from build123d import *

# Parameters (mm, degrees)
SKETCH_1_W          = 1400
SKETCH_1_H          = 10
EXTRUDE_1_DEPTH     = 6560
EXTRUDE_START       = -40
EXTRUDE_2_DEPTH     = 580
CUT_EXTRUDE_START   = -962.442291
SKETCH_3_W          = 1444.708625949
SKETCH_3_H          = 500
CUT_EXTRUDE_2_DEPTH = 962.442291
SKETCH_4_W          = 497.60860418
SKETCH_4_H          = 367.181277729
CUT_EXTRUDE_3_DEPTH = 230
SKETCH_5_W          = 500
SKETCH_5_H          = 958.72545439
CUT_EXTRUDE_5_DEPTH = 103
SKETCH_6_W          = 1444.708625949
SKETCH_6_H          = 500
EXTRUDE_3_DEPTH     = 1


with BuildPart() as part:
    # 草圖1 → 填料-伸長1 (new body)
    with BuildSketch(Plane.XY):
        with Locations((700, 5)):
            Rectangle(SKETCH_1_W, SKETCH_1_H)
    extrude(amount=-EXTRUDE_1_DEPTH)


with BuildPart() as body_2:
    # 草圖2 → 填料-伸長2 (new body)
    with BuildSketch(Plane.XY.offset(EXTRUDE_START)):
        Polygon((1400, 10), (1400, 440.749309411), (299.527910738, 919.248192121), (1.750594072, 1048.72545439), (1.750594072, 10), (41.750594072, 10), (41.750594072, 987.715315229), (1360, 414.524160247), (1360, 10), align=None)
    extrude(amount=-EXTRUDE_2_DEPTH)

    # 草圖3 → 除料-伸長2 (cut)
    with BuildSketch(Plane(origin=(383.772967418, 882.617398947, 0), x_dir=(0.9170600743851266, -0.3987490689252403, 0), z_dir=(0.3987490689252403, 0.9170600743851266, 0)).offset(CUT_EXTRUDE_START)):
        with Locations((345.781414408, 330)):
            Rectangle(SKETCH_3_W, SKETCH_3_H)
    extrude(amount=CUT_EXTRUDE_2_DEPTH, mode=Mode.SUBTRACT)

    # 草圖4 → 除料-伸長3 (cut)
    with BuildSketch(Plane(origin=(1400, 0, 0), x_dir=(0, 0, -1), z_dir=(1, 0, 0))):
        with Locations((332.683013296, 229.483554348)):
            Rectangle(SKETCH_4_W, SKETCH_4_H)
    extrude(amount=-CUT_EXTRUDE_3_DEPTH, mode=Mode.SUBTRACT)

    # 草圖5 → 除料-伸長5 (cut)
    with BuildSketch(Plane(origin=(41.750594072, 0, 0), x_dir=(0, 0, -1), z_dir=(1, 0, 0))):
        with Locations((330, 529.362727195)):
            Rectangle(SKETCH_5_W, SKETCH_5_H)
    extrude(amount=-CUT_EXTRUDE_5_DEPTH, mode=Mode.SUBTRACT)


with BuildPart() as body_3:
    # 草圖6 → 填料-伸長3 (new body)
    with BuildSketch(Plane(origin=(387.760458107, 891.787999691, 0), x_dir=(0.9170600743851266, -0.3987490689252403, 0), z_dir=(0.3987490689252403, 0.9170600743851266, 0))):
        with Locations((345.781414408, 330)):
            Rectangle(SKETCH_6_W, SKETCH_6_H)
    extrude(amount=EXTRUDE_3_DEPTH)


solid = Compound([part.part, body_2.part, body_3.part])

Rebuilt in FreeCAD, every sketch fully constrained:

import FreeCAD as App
import Part
import Sketcher

V = App.Vector
Q = App.Units.Quantity


def add_polygon(sketch, points):
    """Adds a closed chain of lines whose ends are joined by coincident constraints."""
    first, n = sketch.GeometryCount, len(points)
    for a, b in zip(points, points[1:] + points[:1]):
        sketch.addGeometry(Part.LineSegment(App.Vector(*a, 0), App.Vector(*b, 0)), False)
    for i in range(n):
        sketch.addConstraint(Sketcher.Constraint("Coincident", first + i, 2, first + (i + 1) % n, 1))

doc = App.newDocument("Part")
body = doc.addObject("PartDesign::Body", "Body")

sketch1 = body.newObject("Sketcher::SketchObject", "Sketch")
sketch1.AttachmentSupport = (doc.getObject("XY_Plane"), [""])
sketch1.MapMode = "FlatFace"
add_polygon(sketch1, [(0, 10), (0, 0), (1400, 0), (1400, 10)])
sketch1.addConstraint([
    Sketcher.Constraint("Vertical", 0),
    Sketcher.Constraint("Horizontal", 1),
    Sketcher.Constraint("Vertical", 2),
    Sketcher.Constraint("Horizontal", 3),
    Sketcher.Constraint("Coincident", 0, 2, -1, 1),
    Sketcher.Constraint("DistanceX", 1, 1, 1, 2, 1400.0),
    Sketcher.Constraint("DistanceY", 0, 2, 0, 1, 10.0),
])
pad1 = body.newObject("PartDesign::Pad", "Pad")
pad1.Profile = sketch1
pad1.Length = 6560
pad1.Reversed = True
body2 = doc.addObject("PartDesign::Body", "Body001")

sketch2 = body2.newObject("Sketcher::SketchObject", "Sketch001")
sketch2.AttachmentSupport = (doc.getObject("XY_Plane001"), [""])
sketch2.MapMode = "FlatFace"
sketch2.AttachmentOffset = App.Placement(V(0, 0, -40), App.Rotation())
add_polygon(sketch2, [(1400, 10), (1400, 441), (2, 1049), (2, 10), (42, 10), (42, 988), (1360, 415), (1360, 10)])
sketch2.addConstraint([
    Sketcher.Constraint("Vertical", 0),
    Sketcher.Constraint("Vertical", 2),
    Sketcher.Constraint("Horizontal", 3),
    Sketcher.Constraint("Vertical", 4),
    Sketcher.Constraint("Vertical", 6),
    Sketcher.Constraint("Horizontal", 7),
    Sketcher.Constraint("Parallel", 1, 5),
    Sketcher.Constraint("Horizontal", 3, 2, 6, 2),
    Sketcher.Constraint("Equal", 3, 7),
    Sketcher.Constraint("DistanceX", 3, 1, 3, 2, 40.0),
    Sketcher.Constraint("DistanceX", -1, 1, 0, 2, 1400.0),
    Sketcher.Constraint("DistanceY", -1, 1, 2, 2, 10.0),
    Sketcher.Constraint("Angle", 1, Q("156.5 deg")),
    Sketcher.Constraint("DistanceY", 0, 1, 0, 2, 430.749309),
    Sketcher.Constraint("DistanceY", 6, 2, 6, 1, 404.52416),
    Sketcher.Constraint("DistanceY", 2, 2, 2, 1, 1038.725454),
])
pad2 = body2.newObject("PartDesign::Pad", "Pad001")
pad2.Profile = sketch2
pad2.Length = 580
pad2.Reversed = True

sketch3 = body2.newObject("Sketcher::SketchObject", "Sketch002")
sketch3.Placement = App.Placement(V(0, 0, 0), App.Rotation(V(0.917060074, -0.398749069, 0), V(0, 0, -0.999999999), V(0.398749069, 0.917060074, 0), "ZXY"))
add_polygon(sketch3, [(-377, 580), (-377, 80), (1068, 80), (1068, 580)])
sketch3.addConstraint([
    Sketcher.Constraint("Vertical", 0),
    Sketcher.Constraint("Horizontal", 1),
    Sketcher.Constraint("Vertical", 2),
    Sketcher.Constraint("Horizontal", 3),
    Sketcher.Constraint("DistanceY", 0, 2, 0, 1, 499.999999),
    Sketcher.Constraint("DistanceY", -1, 1, 0, 2, 80.0),
    Sketcher.Constraint("DistanceX", 0, 2, -1, 1, 376.572898),
    Sketcher.Constraint("DistanceX", 1, 1, 1, 2, 1444.708625),
])
pocket1 = body2.newObject("PartDesign::Pocket", "Pocket")
pocket1.Profile = sketch3
pocket1.Length = 962.442291
pocket1.Reversed = True

sketch4 = body2.newObject("Sketcher::SketchObject", "Sketch003")
sketch4.AttachmentSupport = (doc.getObject("YZ_Plane001"), [""])
sketch4.MapMode = "FlatFace"
sketch4.AttachmentOffset = App.Placement(V(0, 0, 1400), App.Rotation())
add_polygon(sketch4, [(413, -84), (46, -84), (46, -581), (413, -581)])
sketch4.addConstraint([
    Sketcher.Constraint("Horizontal", 0),
    Sketcher.Constraint("Vertical", 1),
    Sketcher.Constraint("Horizontal", 2),
    Sketcher.Constraint("Vertical", 3),
    Sketcher.Constraint("DistanceX", 0, 2, 0, 1, 367.181278),
    Sketcher.Constraint("DistanceY", 1, 2, 1, 1, 497.608604),
    Sketcher.Constraint("DistanceY", 0, 2, -1, 1, 83.878711),
    Sketcher.Constraint("DistanceX", -1, 1, 0, 2, 45.892915),
])
pocket2 = body2.newObject("PartDesign::Pocket", "Pocket001")
pocket2.Profile = sketch4
pocket2.Length = 230

sketch5 = body2.newObject("Sketcher::SketchObject", "Sketch004")
sketch5.AttachmentSupport = (doc.getObject("YZ_Plane001"), [""])
sketch5.MapMode = "FlatFace"
sketch5.AttachmentOffset = App.Placement(V(0, 0, 41.750594), App.Rotation())
add_polygon(sketch5, [(1009, -80), (50, -80), (50, -580), (1009, -580)])
sketch5.addConstraint([
    Sketcher.Constraint("Horizontal", 0),
    Sketcher.Constraint("Vertical", 1),
    Sketcher.Constraint("Horizontal", 2),
    Sketcher.Constraint("Vertical", 3),
    Sketcher.Constraint("DistanceY", 1, 2, 1, 1, 500.0),
    Sketcher.Constraint("DistanceX", -1, 1, 0, 2, 50.0),
    Sketcher.Constraint("DistanceY", 0, 2, -1, 1, 80.0),
    Sketcher.Constraint("DistanceX", 0, 2, 0, 1, 958.725454),
])
pocket3 = body2.newObject("PartDesign::Pocket", "Pocket002")
pocket3.Profile = sketch5
pocket3.Length = 103
body3 = doc.addObject("PartDesign::Body", "Body002")

sketch6 = body3.newObject("Sketcher::SketchObject", "Sketch005")
sketch6.Placement = App.Placement(V(387.760458, 891.788, 0), App.Rotation(V(0.917060074, -0.398749069, 0), V(0, 0, -0.999999999), V(0.398749069, 0.917060074, 0), "ZXY"))
add_polygon(sketch6, [(-377, 580), (-377, 80), (1068, 80), (1068, 580)])
sketch6.addConstraint([
    Sketcher.Constraint("Vertical", 0),
    Sketcher.Constraint("Horizontal", 1),
    Sketcher.Constraint("Vertical", 2),
    Sketcher.Constraint("Horizontal", 3),
    Sketcher.Constraint("DistanceY", 0, 2, 0, 1, 499.999999),
    Sketcher.Constraint("DistanceY", -1, 1, 0, 2, 80.0),
    Sketcher.Constraint("DistanceX", 0, 2, -1, 1, 376.572898),
    Sketcher.Constraint("DistanceX", 1, 1, 1, 2, 1444.708625),
])
pad3 = body3.newObject("PartDesign::Pad", "Pad002")
pad3.Profile = sketch6
pad3.Length = 1

doc.recompute()
